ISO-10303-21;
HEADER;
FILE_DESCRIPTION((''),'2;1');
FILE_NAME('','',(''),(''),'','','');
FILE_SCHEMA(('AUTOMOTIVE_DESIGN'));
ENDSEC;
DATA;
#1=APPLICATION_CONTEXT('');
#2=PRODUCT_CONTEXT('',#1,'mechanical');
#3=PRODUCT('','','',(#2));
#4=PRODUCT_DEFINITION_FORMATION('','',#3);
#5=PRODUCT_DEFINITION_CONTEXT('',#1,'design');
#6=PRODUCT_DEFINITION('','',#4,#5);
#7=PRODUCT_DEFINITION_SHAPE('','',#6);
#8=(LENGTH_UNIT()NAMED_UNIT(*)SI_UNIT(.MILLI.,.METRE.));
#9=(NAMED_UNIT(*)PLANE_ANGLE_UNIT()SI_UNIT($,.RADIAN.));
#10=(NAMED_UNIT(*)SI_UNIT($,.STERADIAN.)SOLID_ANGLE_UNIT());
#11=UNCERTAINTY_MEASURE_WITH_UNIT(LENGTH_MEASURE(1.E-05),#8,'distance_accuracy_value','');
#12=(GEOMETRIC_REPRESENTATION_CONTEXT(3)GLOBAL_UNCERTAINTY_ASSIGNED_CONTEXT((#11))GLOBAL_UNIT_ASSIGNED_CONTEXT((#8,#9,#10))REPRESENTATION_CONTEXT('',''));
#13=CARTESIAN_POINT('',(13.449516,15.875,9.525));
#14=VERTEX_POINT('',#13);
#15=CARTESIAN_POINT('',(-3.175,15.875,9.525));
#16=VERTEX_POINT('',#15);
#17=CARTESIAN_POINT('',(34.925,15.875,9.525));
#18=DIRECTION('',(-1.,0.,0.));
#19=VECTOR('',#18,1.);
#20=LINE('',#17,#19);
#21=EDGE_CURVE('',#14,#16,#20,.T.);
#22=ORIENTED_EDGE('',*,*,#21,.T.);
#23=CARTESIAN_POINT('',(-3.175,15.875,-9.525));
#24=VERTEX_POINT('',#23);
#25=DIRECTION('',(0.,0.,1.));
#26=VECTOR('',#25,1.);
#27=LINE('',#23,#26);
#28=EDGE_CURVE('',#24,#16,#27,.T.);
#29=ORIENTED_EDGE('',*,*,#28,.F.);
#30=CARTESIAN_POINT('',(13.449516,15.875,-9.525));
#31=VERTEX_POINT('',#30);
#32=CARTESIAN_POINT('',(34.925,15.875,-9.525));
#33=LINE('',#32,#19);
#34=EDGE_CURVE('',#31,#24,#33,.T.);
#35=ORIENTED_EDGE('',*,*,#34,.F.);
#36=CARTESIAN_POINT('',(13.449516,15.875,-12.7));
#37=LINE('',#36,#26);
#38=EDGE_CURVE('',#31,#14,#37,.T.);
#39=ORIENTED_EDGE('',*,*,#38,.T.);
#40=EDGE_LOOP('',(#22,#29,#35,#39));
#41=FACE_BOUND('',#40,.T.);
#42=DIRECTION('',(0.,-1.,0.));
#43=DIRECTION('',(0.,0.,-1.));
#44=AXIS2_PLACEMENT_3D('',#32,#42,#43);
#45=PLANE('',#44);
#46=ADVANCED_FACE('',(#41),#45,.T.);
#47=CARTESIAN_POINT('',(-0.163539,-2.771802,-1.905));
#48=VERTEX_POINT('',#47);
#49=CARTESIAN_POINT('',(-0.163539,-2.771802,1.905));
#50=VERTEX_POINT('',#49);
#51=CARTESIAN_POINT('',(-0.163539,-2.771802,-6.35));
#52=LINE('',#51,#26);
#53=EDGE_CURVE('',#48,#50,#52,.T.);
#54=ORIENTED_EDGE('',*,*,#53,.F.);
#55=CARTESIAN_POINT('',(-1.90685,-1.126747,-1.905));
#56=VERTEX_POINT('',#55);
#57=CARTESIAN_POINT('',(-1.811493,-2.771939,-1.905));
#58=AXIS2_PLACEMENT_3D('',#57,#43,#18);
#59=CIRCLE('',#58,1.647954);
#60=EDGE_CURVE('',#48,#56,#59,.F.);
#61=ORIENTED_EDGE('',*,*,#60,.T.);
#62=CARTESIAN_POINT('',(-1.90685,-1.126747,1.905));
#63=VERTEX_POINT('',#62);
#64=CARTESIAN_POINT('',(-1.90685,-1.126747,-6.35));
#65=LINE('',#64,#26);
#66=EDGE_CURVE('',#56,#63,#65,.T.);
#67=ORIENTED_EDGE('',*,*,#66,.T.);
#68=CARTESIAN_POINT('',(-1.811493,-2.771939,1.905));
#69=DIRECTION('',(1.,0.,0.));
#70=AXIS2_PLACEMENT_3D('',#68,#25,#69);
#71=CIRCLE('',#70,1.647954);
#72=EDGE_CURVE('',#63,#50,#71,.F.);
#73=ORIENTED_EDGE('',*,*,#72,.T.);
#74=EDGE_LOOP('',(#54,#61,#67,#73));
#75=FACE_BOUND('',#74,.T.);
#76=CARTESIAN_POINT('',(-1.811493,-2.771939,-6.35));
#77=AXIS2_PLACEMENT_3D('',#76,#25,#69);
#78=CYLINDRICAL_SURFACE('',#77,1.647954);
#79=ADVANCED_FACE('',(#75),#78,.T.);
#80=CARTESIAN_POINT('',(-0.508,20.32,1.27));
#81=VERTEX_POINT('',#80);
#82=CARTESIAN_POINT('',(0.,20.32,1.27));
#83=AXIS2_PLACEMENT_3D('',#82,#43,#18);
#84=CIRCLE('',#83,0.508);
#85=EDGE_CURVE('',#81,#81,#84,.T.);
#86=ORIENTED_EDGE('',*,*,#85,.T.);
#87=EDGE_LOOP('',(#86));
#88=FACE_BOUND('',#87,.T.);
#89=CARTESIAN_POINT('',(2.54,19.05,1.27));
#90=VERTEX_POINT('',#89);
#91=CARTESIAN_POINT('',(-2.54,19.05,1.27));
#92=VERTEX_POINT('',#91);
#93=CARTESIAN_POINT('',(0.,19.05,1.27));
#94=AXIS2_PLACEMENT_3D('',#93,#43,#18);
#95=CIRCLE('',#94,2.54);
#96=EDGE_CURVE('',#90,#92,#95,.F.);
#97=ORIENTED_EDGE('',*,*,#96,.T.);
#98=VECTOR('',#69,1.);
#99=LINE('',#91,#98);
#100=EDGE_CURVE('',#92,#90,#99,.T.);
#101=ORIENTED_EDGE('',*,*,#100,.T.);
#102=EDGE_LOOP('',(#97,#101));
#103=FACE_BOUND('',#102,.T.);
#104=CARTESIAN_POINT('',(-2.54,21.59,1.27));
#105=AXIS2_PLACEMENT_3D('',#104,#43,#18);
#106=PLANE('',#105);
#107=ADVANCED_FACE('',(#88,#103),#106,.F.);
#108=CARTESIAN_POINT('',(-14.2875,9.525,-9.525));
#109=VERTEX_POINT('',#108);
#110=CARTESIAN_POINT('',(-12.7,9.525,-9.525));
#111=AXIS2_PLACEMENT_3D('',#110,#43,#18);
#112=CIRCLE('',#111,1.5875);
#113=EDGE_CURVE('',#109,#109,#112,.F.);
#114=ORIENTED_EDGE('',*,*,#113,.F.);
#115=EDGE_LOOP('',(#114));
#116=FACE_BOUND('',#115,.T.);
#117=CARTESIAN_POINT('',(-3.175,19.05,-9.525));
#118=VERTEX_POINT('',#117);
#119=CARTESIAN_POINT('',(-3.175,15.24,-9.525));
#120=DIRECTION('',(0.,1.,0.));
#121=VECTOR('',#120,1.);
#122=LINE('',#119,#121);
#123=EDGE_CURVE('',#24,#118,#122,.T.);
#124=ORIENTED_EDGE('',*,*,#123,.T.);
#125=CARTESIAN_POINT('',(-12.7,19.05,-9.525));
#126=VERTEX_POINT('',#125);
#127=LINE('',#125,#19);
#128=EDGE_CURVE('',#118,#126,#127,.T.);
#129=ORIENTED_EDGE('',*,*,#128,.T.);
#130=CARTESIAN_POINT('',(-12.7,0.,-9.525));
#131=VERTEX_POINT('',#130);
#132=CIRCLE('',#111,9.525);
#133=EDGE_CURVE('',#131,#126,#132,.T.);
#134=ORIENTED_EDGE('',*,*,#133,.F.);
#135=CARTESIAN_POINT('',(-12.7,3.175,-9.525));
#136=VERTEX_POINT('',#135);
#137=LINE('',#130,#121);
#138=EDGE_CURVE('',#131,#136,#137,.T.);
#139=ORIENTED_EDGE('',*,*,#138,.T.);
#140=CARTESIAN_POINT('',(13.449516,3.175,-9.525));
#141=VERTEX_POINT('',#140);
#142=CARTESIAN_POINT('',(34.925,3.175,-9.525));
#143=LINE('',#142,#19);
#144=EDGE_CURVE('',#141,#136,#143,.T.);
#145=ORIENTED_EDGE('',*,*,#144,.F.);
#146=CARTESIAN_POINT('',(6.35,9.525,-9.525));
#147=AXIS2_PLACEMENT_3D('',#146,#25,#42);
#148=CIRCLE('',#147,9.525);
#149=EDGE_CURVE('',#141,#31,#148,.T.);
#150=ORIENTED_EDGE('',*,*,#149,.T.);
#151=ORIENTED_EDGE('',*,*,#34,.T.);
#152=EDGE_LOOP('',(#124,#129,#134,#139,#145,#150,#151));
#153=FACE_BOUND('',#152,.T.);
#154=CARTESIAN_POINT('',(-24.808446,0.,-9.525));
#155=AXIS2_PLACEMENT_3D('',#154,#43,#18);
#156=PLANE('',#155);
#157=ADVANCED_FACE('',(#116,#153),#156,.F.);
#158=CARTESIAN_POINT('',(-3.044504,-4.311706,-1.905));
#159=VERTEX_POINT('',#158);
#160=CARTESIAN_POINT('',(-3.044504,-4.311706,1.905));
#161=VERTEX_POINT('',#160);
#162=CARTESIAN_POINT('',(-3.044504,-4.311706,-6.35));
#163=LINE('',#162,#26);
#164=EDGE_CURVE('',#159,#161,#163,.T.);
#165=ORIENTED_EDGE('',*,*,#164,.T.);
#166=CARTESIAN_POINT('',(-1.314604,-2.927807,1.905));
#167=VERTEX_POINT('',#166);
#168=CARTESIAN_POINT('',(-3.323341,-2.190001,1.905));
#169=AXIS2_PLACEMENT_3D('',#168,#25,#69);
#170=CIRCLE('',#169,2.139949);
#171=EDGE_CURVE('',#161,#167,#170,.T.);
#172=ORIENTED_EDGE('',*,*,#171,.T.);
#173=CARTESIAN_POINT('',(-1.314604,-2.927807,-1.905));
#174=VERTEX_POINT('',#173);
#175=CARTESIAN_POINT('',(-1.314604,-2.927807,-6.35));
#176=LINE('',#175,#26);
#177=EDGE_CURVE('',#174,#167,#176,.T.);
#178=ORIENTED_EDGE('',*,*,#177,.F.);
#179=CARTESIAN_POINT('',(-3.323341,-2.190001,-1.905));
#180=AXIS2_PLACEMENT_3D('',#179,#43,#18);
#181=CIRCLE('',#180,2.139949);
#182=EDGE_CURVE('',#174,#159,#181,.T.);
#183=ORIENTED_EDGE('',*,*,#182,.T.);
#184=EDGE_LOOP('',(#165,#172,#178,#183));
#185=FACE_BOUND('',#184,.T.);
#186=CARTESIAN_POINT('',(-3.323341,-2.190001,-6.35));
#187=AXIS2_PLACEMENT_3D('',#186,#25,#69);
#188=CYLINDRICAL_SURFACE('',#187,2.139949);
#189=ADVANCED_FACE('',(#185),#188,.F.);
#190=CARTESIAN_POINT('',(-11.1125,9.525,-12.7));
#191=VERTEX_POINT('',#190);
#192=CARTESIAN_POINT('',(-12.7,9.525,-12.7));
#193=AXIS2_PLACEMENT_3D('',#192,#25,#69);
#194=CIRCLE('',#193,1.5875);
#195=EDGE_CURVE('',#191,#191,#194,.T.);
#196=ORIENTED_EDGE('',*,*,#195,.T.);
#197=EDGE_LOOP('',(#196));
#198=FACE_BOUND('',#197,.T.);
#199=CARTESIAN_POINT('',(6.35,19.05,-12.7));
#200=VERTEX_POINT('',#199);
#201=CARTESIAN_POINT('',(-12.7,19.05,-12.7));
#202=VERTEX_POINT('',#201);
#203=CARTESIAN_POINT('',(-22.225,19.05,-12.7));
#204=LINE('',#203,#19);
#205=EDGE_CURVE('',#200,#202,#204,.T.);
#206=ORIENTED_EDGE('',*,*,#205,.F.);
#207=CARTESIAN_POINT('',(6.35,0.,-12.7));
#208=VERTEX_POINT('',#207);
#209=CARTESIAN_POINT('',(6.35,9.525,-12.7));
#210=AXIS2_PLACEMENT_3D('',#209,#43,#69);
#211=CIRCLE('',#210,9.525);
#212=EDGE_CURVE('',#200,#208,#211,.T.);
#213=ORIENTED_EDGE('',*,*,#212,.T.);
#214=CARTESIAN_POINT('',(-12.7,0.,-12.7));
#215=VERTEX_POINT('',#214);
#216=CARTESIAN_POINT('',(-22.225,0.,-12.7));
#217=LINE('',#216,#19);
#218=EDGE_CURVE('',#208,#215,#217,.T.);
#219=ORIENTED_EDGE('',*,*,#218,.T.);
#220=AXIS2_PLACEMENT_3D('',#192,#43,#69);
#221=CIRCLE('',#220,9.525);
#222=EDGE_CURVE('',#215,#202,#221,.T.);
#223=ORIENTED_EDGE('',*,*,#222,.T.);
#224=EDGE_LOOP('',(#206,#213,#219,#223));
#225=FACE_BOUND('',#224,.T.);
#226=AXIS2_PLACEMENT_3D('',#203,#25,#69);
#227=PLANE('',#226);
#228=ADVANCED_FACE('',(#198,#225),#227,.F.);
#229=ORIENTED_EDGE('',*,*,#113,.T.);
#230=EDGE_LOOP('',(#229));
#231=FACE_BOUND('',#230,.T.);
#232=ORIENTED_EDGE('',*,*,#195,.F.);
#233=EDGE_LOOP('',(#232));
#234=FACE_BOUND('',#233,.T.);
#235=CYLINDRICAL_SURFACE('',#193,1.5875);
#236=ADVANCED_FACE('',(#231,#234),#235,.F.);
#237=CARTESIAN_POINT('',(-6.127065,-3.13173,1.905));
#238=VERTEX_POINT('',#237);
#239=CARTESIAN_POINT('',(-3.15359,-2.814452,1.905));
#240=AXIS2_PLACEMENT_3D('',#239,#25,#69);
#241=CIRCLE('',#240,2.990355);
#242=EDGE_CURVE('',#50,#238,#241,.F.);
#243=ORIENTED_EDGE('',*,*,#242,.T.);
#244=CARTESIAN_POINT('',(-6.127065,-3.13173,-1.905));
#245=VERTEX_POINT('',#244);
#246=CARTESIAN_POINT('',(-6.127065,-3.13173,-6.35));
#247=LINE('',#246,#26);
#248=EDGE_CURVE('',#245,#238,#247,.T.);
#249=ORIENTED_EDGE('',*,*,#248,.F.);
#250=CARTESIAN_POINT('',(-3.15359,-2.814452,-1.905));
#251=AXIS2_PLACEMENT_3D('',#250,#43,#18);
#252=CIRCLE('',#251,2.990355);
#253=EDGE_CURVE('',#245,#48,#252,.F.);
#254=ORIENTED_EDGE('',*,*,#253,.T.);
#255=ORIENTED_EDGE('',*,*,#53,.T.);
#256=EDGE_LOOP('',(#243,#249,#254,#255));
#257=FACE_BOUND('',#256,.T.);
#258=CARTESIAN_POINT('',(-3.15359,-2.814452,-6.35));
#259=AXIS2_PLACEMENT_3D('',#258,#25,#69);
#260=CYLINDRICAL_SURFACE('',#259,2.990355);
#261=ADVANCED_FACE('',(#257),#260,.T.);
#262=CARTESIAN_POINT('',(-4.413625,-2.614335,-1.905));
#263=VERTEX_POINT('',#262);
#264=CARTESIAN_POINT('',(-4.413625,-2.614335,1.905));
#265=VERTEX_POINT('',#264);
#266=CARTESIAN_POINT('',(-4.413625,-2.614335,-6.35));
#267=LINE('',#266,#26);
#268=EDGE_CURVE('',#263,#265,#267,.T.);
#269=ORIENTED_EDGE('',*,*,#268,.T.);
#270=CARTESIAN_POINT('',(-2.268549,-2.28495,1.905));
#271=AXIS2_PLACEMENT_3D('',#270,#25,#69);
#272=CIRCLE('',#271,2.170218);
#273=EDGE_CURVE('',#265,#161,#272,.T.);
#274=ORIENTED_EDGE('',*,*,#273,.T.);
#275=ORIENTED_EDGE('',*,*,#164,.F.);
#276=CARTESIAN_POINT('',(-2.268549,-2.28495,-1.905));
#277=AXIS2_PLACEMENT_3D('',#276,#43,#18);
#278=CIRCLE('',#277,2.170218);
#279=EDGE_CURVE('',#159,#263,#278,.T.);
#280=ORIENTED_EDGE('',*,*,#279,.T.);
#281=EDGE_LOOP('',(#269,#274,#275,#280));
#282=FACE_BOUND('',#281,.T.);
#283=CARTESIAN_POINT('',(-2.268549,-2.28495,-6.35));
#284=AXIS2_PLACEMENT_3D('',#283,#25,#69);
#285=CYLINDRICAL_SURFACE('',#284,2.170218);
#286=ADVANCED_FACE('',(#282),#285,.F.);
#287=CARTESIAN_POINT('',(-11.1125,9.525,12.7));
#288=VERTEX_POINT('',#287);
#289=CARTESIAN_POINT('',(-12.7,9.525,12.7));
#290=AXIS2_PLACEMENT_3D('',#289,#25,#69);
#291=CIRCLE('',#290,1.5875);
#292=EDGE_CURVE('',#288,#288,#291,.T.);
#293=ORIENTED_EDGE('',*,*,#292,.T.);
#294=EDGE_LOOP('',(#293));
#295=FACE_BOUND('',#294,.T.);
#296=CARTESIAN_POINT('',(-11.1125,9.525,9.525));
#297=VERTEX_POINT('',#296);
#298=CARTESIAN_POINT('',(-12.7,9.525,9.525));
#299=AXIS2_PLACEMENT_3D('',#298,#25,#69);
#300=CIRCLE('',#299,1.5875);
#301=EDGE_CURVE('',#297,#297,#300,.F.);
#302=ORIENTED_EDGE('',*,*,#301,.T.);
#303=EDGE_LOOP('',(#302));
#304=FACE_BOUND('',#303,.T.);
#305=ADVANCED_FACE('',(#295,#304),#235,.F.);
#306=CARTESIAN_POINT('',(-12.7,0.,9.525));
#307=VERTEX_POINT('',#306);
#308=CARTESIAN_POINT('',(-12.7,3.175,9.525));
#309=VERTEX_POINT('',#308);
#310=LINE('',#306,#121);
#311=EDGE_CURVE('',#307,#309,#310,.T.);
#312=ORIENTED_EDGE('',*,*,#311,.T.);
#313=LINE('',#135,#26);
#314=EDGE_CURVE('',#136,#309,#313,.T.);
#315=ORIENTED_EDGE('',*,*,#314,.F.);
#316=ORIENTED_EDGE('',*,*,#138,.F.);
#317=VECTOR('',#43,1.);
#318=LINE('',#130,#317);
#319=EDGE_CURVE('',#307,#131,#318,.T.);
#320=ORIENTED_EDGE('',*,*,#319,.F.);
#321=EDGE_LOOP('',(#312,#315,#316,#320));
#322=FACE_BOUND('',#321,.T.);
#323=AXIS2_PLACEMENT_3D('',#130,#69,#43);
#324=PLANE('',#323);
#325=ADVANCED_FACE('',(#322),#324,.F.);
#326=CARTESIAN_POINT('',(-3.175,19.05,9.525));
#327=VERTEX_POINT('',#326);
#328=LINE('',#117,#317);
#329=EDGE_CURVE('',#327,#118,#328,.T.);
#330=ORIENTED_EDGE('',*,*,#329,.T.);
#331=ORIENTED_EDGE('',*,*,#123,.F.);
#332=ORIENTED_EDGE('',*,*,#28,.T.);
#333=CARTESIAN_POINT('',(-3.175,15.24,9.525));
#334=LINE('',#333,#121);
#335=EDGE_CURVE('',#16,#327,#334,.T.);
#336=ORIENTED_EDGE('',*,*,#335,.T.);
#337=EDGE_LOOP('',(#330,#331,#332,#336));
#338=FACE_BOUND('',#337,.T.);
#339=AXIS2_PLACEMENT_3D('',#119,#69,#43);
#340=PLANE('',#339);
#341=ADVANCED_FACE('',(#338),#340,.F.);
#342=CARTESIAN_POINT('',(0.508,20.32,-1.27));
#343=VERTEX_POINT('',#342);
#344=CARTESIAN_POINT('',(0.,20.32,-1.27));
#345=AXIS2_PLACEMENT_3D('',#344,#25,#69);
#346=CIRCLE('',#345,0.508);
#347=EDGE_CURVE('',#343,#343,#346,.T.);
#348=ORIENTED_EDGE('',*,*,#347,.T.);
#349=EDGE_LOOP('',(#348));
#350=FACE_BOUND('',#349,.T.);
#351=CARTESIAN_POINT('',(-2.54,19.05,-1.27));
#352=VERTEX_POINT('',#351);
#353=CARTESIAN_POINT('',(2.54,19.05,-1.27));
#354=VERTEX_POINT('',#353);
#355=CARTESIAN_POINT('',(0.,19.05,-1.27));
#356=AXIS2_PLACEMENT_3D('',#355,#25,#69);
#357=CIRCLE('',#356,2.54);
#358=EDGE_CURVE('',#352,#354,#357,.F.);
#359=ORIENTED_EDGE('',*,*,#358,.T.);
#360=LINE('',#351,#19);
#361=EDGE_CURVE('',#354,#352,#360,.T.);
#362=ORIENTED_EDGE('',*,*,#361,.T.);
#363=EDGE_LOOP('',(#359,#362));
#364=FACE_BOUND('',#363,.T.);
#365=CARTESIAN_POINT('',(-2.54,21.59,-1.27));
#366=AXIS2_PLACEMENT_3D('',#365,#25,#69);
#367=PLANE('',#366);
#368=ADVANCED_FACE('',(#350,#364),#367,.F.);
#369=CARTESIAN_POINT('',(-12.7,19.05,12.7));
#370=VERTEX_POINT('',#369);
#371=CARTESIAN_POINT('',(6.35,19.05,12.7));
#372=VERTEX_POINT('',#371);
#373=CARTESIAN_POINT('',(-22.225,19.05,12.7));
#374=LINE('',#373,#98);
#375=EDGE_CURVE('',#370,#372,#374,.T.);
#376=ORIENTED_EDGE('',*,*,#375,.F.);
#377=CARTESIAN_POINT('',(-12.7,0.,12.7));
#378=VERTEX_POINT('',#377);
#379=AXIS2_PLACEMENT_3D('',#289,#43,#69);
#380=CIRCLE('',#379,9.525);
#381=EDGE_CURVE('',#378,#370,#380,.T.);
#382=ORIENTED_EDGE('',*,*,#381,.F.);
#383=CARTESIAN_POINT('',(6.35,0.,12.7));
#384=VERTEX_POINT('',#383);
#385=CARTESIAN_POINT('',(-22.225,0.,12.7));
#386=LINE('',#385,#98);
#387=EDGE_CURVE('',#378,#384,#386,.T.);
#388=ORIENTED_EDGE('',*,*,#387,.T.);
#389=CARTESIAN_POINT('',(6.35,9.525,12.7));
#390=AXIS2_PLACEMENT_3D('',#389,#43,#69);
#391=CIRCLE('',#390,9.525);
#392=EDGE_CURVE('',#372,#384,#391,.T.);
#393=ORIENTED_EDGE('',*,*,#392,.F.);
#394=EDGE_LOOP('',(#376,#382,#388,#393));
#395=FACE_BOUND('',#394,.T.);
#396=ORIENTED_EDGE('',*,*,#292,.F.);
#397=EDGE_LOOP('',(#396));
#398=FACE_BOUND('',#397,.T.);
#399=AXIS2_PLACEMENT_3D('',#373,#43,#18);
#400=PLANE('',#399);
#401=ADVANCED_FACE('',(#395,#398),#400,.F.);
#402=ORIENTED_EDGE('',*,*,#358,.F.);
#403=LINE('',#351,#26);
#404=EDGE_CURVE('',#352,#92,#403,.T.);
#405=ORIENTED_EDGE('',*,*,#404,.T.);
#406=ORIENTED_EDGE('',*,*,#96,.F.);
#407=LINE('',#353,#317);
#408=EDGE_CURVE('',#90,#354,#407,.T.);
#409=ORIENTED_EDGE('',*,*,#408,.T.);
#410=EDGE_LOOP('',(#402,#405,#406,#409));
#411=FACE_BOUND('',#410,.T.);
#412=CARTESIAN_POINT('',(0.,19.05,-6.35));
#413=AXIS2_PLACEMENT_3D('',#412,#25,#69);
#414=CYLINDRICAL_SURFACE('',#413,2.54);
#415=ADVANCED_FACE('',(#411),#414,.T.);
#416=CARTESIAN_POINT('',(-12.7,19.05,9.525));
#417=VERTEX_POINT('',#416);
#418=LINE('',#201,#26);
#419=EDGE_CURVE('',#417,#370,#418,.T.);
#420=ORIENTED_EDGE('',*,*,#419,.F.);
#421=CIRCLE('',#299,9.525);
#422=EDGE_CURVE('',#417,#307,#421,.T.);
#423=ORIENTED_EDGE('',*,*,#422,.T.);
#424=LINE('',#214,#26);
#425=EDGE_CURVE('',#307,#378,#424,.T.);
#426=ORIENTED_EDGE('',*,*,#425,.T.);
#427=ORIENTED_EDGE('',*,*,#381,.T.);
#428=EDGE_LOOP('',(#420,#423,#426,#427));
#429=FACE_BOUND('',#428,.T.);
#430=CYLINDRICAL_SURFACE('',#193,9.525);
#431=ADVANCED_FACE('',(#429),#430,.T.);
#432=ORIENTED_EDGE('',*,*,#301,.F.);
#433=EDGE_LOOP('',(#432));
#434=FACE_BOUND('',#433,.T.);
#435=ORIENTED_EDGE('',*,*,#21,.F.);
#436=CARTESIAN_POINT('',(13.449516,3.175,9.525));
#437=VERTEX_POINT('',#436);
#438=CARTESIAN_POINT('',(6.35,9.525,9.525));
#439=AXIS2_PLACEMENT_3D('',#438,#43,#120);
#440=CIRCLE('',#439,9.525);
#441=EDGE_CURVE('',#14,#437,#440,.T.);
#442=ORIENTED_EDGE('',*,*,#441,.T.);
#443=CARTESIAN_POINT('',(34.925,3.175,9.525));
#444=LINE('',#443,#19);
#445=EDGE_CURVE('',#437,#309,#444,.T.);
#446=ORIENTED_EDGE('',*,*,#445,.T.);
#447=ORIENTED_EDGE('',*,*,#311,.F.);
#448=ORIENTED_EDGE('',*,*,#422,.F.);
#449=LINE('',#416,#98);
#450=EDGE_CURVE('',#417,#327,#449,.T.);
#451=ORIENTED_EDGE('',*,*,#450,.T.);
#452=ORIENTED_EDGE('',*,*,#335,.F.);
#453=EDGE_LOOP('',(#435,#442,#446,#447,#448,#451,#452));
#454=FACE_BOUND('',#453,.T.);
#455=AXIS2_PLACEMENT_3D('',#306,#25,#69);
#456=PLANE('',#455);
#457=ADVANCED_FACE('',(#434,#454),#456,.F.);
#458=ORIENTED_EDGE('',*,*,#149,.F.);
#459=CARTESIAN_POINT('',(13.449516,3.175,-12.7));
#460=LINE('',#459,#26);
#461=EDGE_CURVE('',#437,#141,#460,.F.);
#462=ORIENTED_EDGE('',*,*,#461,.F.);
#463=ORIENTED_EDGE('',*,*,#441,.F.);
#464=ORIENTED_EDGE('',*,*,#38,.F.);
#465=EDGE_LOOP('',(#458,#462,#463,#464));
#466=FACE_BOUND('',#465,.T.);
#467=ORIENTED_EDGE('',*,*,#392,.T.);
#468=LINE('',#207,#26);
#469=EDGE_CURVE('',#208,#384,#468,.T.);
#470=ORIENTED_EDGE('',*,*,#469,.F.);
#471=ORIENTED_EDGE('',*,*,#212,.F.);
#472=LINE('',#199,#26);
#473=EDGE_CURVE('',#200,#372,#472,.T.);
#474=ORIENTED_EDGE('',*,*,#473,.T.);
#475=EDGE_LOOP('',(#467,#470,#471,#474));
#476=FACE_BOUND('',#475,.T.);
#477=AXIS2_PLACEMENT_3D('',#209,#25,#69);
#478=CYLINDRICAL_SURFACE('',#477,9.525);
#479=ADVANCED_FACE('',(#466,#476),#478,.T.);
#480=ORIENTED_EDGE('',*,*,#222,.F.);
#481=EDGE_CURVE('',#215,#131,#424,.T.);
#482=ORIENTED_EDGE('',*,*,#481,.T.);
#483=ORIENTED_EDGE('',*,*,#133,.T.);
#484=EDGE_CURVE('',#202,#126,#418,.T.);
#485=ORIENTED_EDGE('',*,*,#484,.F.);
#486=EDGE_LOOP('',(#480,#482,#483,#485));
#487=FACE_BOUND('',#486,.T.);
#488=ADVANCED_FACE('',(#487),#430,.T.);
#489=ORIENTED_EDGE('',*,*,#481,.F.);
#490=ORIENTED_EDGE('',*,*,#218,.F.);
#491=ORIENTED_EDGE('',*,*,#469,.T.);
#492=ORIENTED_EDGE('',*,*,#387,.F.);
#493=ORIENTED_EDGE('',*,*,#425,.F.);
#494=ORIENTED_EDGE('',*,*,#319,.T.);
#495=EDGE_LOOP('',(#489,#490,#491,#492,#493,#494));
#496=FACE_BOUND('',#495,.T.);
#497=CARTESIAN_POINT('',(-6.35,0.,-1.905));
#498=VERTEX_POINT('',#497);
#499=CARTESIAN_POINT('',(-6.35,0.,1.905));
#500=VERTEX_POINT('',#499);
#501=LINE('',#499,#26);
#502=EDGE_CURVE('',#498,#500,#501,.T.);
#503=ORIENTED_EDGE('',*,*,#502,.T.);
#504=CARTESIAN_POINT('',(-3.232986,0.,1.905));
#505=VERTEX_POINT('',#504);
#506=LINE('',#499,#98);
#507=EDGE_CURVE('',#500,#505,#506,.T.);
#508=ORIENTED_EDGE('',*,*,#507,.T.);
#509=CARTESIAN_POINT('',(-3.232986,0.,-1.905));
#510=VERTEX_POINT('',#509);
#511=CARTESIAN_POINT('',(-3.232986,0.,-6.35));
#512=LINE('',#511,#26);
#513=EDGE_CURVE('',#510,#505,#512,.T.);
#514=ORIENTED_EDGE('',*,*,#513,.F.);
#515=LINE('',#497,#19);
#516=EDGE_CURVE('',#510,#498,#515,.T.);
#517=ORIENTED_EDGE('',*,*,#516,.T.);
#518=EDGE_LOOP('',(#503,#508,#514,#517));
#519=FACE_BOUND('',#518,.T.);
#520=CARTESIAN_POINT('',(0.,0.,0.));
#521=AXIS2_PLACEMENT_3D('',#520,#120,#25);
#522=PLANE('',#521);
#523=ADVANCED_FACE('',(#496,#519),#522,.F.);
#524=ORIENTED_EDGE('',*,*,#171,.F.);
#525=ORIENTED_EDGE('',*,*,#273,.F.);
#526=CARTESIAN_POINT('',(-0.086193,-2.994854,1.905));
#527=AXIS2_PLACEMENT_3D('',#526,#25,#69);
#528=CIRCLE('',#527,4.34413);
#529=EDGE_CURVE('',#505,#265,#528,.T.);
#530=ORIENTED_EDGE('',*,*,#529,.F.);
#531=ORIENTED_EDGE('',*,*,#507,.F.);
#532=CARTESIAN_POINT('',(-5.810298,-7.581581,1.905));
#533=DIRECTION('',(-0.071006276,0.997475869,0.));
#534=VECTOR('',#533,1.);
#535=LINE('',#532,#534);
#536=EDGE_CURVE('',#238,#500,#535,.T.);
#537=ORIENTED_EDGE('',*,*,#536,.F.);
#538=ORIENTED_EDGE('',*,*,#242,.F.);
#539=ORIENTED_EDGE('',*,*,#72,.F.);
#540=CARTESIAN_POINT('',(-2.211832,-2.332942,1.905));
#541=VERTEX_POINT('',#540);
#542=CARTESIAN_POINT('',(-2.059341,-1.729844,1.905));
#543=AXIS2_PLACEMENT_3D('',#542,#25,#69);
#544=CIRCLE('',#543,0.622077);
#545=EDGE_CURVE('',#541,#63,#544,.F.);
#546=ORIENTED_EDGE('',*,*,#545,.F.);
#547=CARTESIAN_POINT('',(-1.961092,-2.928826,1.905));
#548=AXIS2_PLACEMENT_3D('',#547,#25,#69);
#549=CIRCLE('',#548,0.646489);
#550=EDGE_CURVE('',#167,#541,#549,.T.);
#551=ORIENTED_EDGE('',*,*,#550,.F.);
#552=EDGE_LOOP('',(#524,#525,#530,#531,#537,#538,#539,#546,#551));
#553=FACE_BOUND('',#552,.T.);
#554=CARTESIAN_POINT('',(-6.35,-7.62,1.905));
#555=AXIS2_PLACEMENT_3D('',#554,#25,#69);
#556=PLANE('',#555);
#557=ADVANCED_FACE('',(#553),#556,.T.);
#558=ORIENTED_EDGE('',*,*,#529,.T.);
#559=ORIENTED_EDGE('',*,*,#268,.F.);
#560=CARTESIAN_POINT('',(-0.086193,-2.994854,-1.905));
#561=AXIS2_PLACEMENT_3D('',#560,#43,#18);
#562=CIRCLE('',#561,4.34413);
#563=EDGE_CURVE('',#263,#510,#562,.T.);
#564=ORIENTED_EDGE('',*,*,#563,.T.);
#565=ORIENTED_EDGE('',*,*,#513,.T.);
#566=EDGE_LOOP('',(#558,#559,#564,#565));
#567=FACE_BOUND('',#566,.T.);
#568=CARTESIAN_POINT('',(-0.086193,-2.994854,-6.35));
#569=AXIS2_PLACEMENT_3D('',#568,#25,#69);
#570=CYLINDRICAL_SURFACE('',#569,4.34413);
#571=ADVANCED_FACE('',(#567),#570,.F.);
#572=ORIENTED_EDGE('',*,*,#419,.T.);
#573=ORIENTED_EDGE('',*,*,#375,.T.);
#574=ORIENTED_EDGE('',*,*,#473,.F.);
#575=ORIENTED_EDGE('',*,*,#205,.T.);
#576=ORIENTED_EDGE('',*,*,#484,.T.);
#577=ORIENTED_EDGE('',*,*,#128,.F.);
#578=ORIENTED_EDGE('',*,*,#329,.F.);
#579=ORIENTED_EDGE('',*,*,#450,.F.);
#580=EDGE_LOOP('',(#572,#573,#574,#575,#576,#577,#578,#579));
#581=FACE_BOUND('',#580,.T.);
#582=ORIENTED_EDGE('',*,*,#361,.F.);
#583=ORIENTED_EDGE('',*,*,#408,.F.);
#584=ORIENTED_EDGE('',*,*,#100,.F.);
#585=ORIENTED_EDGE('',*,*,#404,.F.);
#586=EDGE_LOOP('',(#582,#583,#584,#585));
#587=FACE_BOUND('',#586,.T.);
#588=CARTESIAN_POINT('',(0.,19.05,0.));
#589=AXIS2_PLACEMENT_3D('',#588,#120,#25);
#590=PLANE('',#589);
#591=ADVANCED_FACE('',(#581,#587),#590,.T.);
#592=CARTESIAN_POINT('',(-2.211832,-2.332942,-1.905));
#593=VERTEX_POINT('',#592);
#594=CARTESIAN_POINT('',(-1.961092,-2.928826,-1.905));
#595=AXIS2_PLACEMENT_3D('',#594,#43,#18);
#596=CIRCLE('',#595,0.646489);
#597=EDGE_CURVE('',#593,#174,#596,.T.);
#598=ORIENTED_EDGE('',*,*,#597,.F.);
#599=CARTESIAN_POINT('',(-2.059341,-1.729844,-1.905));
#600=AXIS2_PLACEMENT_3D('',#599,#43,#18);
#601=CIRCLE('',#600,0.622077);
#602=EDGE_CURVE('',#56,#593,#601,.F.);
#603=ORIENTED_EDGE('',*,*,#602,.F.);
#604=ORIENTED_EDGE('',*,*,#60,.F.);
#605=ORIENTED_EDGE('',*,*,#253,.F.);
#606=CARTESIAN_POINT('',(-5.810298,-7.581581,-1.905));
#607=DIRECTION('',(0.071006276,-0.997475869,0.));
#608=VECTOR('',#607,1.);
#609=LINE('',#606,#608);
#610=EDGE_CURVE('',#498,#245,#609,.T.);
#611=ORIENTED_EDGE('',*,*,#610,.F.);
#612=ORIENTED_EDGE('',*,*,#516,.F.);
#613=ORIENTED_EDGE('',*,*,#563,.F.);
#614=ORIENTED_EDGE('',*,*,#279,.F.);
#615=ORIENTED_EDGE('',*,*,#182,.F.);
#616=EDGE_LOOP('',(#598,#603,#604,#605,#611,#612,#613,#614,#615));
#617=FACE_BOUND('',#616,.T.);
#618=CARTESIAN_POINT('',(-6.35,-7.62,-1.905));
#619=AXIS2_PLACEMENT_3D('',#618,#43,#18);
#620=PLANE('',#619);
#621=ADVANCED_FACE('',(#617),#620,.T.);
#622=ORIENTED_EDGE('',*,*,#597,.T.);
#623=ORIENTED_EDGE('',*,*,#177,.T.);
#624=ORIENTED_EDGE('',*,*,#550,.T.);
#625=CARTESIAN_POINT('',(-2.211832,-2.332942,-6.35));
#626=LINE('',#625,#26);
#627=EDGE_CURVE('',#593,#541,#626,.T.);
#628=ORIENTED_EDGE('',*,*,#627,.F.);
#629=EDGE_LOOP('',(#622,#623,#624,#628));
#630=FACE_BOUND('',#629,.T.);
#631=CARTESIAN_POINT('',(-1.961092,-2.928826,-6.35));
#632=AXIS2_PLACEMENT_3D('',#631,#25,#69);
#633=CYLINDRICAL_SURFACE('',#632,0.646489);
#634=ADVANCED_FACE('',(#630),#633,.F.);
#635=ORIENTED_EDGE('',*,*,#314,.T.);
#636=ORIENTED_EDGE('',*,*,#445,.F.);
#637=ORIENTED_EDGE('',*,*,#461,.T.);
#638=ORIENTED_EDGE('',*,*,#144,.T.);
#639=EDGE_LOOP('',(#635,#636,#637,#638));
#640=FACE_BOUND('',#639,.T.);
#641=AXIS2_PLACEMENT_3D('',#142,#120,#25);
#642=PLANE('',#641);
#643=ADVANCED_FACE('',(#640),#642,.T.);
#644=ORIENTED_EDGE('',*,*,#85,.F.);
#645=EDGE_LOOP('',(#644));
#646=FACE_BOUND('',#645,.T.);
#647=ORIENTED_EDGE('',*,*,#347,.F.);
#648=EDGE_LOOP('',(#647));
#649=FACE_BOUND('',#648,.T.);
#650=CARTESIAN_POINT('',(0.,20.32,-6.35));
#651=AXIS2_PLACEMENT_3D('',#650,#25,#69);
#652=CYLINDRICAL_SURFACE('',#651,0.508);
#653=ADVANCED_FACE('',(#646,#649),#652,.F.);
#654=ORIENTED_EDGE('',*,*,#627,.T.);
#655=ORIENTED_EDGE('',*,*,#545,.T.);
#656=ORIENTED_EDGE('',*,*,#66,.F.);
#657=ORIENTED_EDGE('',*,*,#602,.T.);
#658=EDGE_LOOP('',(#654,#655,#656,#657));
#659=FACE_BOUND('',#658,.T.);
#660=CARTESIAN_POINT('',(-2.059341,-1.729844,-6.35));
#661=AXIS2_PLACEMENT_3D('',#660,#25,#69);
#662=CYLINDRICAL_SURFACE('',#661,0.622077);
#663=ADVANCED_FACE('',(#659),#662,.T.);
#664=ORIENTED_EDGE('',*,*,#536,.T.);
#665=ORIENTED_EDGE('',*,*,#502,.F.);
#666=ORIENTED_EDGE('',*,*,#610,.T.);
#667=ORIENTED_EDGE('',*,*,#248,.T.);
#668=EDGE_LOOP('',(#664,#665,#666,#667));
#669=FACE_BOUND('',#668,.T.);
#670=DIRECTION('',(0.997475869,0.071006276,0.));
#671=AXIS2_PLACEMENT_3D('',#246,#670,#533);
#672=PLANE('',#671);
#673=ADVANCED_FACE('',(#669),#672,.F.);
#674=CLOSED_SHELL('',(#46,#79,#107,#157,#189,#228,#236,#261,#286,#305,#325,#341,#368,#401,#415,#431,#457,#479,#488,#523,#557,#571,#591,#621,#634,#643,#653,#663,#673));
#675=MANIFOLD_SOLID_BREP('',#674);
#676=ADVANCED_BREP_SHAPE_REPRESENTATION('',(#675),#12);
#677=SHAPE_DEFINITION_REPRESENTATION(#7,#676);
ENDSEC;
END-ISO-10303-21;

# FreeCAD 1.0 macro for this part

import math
import FreeCAD as App
import Part
import Sketcher
from FreeCAD import Vector
Q = App.Units.Quantity


def add_polygon(sketch, points):
    """Adds a closed chain of lines whose ends are joined by coincident constraints."""
    first, n = sketch.GeometryCount, len(points)
    for a, b in zip(points, points[1:] + points[:1]):
        sketch.addGeometry(Part.LineSegment(App.Vector(*a, 0), App.Vector(*b, 0)), False)
    for i in range(n):
        sketch.addConstraint(Sketcher.Constraint("Coincident", first + i, 2, first + (i + 1) % n, 1))

doc = App.newDocument("Part")
params = doc.addObject("Spreadsheet::Sheet", "Params")
for row, (alias, value) in enumerate([
    ("sketch1_height", "1 in"),
    ("sketch1_width", "1.5 in"),
    ("pad1_length", "0.75 in"),
    ("sketch2_diameter", "0.125 in"),
    ("sketch2_radius", "0.375 in"),
    ("pocket1_length", "1 in"),
    ("sketch3_height", "0.75 in"),
    ("pocket2_length", "0.75 in"),
    ("sketch4_width", "0.5 in"),
    ("sketch4_height", "0.75 in"),
    ("pocket3_length", "2 in"),
    ("sketch5_height", "0.15 in"),
    ("pad2_length", "0.3 in"),
    ("pocket4_length", "0.75 in"),
    ("sketch7_width", "0.2 in"),
    ("sketch7_height", "0.1 in"),
    ("pad3_length", "0.1 in"),
    ("sketch8_radius", "0.1 in"),
    ("sketch8_diameter", "0.04 in"),
    ("pocket5_length", "0.75 in"),
    ("sketch9_height", "0.75 in"),
    ("sketch9_width", "0.375 in"),
    ("pocket6_length", "0.15 in"),
], start=1):
    params.set(f"A{row}", alias)
    params.set(f"B{row}", "=" + value)
    params.setAlias(f"B{row}", alias)

body = doc.addObject("PartDesign::Body", "Body")

# Sketch on XZ plane
sketch1 = body.newObject("Sketcher::SketchObject", "Sketch")
sketch1.AttachmentSupport = (doc.getObject("XZ_Plane"), [""])
sketch1.MapMode = "FlatFace"
add_polygon(sketch1, [(-22.225, -12.7), (-22.225, 12.7), (15.875, 12.7), (15.875, -12.7)])  # lines 0-3
sketch1.addConstraint(Sketcher.Constraint("Vertical", 0))
sketch1.addConstraint(Sketcher.Constraint("Horizontal", 1))
sketch1.addConstraint(Sketcher.Constraint("Vertical", 2))
sketch1.addConstraint(Sketcher.Constraint("Horizontal", 3))
sketch1.addConstraint(Sketcher.Constraint("DistanceY", 0, 1, 0, 2, Q("1 in")))
sketch1.addConstraint(Sketcher.Constraint("DistanceX", 1, 1, 1, 2, Q("1.5 in")))
sketch1.addConstraint(Sketcher.Constraint("DistanceY", -1, 1, 0, 2, Q("0.5 in")))
sketch1.addConstraint(Sketcher.Constraint("DistanceX", 0, 2, -1, 1, Q("0.875 in")))
sketch1.setExpression("Constraints[8]", "Params.sketch1_height")
sketch1.setExpression("Constraints[9]", "Params.sketch1_width")
pad1 = body.newObject("PartDesign::Pad", "Pad")
pad1.Profile = sketch1
pad1.setExpression("Length", "Params.pad1_length")
pad1.Reversed = True

# Sketch on XY plane
sketch2 = body.newObject("Sketcher::SketchObject", "Sketch001")
sketch2.AttachmentSupport = (doc.getObject("XY_Plane"), [""])
sketch2.MapMode = "FlatFace"
sketch2.AttachmentOffset = App.Placement(Vector(0, 0, 0.5 * 25.4), App.Rotation())
sketch2.addGeometry(Part.Circle(Vector(-12.7, 9.525, 0), Vector(0, 0, 1), 1.5875), False)
sketch2.addGeometry(Part.ArcOfCircle(Part.Circle(Vector(-12.7, 9.525, 0), Vector(0, 0, 1), 9.525), math.radians(90), math.radians(270)), False)
sketch2.addGeometry(Part.ArcOfCircle(Part.Circle(Vector(-21.018848, 9.525, 0), Vector(0, 0, 1), 12.646298), math.radians(48.867016), math.radians(311.132984)), False)
sketch2.addGeometry(Part.ArcOfCircle(Part.Circle(Vector(6.35, 9.525, 0), Vector(0, 0, 1), 9.525), math.radians(-90), math.radians(90)), False)
sketch2.addGeometry(Part.ArcOfCircle(Part.Circle(Vector(13.209964, 9.525, 0), Vector(0, 0, 1), 11.738174), math.radians(-125.761667), math.radians(125.761667)), False)
sketch2.addConstraint(Sketcher.Constraint("Coincident", 1, 1, 2, 1))
sketch2.addConstraint(Sketcher.Constraint("Coincident", 2, 2, 1, 2))
sketch2.addConstraint(Sketcher.Constraint("Coincident", 3, 1, 4, 1))
sketch2.addConstraint(Sketcher.Constraint("Coincident", 4, 2, 3, 2))
sketch2.addConstraint(Sketcher.Constraint("Coincident", 1, 3, 0, 3))
sketch2.addConstraint(Sketcher.Constraint("Equal", 1, 3))
sketch2.addConstraint(Sketcher.Constraint("PointOnObject", 2, 2, -1))
sketch2.addConstraint(Sketcher.Constraint("PointOnObject", 3, 1, -1))
sketch2.addConstraint(Sketcher.Constraint("Horizontal", 1, 3, 2, 3))
sketch2.addConstraint(Sketcher.Constraint("Horizontal", 3, 3, 4, 3))
sketch2.addConstraint(Sketcher.Constraint("Vertical", 0, 3, 1, 1))
sketch2.addConstraint(Sketcher.Constraint("Diameter", 0, Q("0.125 in")))
sketch2.addConstraint(Sketcher.Constraint("Radius", 1, Q("0.375 in")))
sketch2.addConstraint(Sketcher.Constraint("DistanceX", 0, 3, -1, 1, Q("0.5 in")))
sketch2.addConstraint(Sketcher.Constraint("DistanceX", -1, 1, 3, 3, Q("0.25 in")))
sketch2.addConstraint(Sketcher.Constraint("DistanceX", -1, 1, 3, 1, Q("0.25 in")))
sketch2.addConstraint(Sketcher.Constraint("Radius", 2, Q("12.646298 mm")))
sketch2.addConstraint(Sketcher.Constraint("Radius", 4, Q("11.738174 mm")))
sketch2.setExpression("Constraints[11]", "Params.sketch2_diameter")
sketch2.setExpression("Constraints[12]", "Params.sketch2_radius")
pocket1 = body.newObject("PartDesign::Pocket", "Pocket")
pocket1.Profile = sketch2
pocket1.setExpression("Length", "Params.pocket1_length")

# Sketch on XZ plane
sketch3 = body.newObject("Sketcher::SketchObject", "Sketch002")
sketch3.AttachmentSupport = (doc.getObject("XZ_Plane"), [""])
sketch3.MapMode = "FlatFace"
sketch3.AttachmentOffset = App.Placement(Vector(0, 0, -0.75 * 25.4), App.Rotation())
add_polygon(sketch3, [(-24.808446, -9.525), (-24.808446, 9.525), (-12.7, 9.525), (-12.7, -9.525)])  # lines 0-3
sketch3.addConstraint(Sketcher.Constraint("Vertical", 0))
sketch3.addConstraint(Sketcher.Constraint("Horizontal", 1))
sketch3.addConstraint(Sketcher.Constraint("Vertical", 2))
sketch3.addConstraint(Sketcher.Constraint("Horizontal", 3))
sketch3.addConstraint(Sketcher.Constraint("DistanceY", 0, 1, 0, 2, Q("0.75 in")))
sketch3.addConstraint(Sketcher.Constraint("DistanceX", 1, 2, -1, 1, Q("0.5 in")))
sketch3.addConstraint(Sketcher.Constraint("DistanceY", -1, 1, 0, 2, Q("0.375 in")))
sketch3.addConstraint(Sketcher.Constraint("DistanceX", 1, 1, 1, 2, Q("12.108446 mm")))
sketch3.setExpression("Constraints[8]", "Params.sketch3_height")
pocket2 = body.newObject("PartDesign::Pocket", "Pocket001")
pocket2.Profile = sketch3
pocket2.setExpression("Length", "Params.pocket2_length")
pocket2.Reversed = True

# Sketch on YZ plane
sketch4 = body.newObject("Sketcher::SketchObject", "Sketch003")
sketch4.AttachmentSupport = (doc.getObject("YZ_Plane"), [""])
sketch4.MapMode = "FlatFace"
sketch4.AttachmentOffset = App.Placement(Vector(0, 0, -0.625 * 25.4), App.Rotation())
add_polygon(sketch4, [(15.875, 9.525), (3.175, 9.525), (3.175, -9.525), (15.875, -9.525)])  # lines 0-3
sketch4.addConstraint(Sketcher.Constraint("Horizontal", 0))
sketch4.addConstraint(Sketcher.Constraint("Vertical", 1))
sketch4.addConstraint(Sketcher.Constraint("Horizontal", 2))
sketch4.addConstraint(Sketcher.Constraint("Vertical", 3))
sketch4.addConstraint(Sketcher.Constraint("DistanceX", 0, 2, 0, 1, Q("0.5 in")))
sketch4.addConstraint(Sketcher.Constraint("DistanceY", 1, 2, 1, 1, Q("0.75 in")))
sketch4.addConstraint(Sketcher.Constraint("DistanceX", -1, 1, 0, 2, Q("0.125 in")))
sketch4.addConstraint(Sketcher.Constraint("DistanceY", -1, 1, 0, 2, Q("0.375 in")))
sketch4.setExpression("Constraints[8]", "Params.sketch4_width")
sketch4.setExpression("Constraints[9]", "Params.sketch4_height")
pocket3 = body.newObject("PartDesign::Pocket", "Pocket002")
pocket3.Profile = sketch4
pocket3.setExpression("Length", "Params.pocket3_length")
pocket3.Reversed = True

# Sketch on XZ plane
sketch5 = body.newObject("Sketcher::SketchObject", "Sketch004")
sketch5.AttachmentSupport = (doc.getObject("XZ_Plane"), [""])
sketch5.MapMode = "FlatFace"
add_polygon(sketch5, [(-6.35, -1.905), (-6.35, 1.905), (1.31057, 1.905), (1.31057, -1.905)])  # lines 0-3
sketch5.addConstraint(Sketcher.Constraint("Vertical", 0))
sketch5.addConstraint(Sketcher.Constraint("Horizontal", 1))
sketch5.addConstraint(Sketcher.Constraint("Vertical", 2))
sketch5.addConstraint(Sketcher.Constraint("Horizontal", 3))
sketch5.addConstraint(Sketcher.Constraint("DistanceY", 0, 1, 0, 2, Q("0.15 in")))
sketch5.addConstraint(Sketcher.Constraint("DistanceX", 0, 2, -1, 1, Q("0.25 in")))
sketch5.addConstraint(Sketcher.Constraint("DistanceY", -1, 1, 0, 2, Q("0.075 in")))
sketch5.addConstraint(Sketcher.Constraint("DistanceX", 1, 1, 1, 2, Q("7.66057 mm")))
sketch5.setExpression("Constraints[8]", "Params.sketch5_height")
pad2 = body.newObject("PartDesign::Pad", "Pad001")
pad2.Profile = sketch5
pad2.setExpression("Length", "Params.pad2_length")

# Sketch on XY plane
sketch6 = body.newObject("Sketcher::SketchObject", "Sketch005")
sketch6.AttachmentSupport = (doc.getObject("XY_Plane"), [""])
sketch6.MapMode = "FlatFace"
sketch6.AttachmentOffset = App.Placement(Vector(0, 0, 0.5 * 25.4), App.Rotation())
sketch6.addGeometry(Part.LineSegment(Vector(-6.858, 0, 0), Vector(-7.080935, -3.13173, 0)), False)
sketch6.addGeometry(Part.ArcOfCircle(Part.Circle(Vector(-10.05441, -2.814452, 0), Vector(0, 0, 1), 2.990355), math.radians(-81.177754), math.radians(-6.090574)), False)
sketch6.addGeometry(Part.ArcOfCircle(Part.Circle(Vector(-10.05441, -2.814452, 0), Vector(0, 0, 1), 2.990355), math.radians(179.182795), math.radians(278.822246)), False)
sketch6.addGeometry(Part.ArcOfCircle(Part.Circle(Vector(-11.396507, -2.771939, 0), Vector(0, 0, 1), 1.647954), math.radians(86.682793), math.radians(179.995226)), False)
sketch6.addGeometry(Part.ArcOfCircle(Part.Circle(Vector(-11.148659, -1.729844, 0), Vector(0, 0, 1), 0.622077), math.radians(-75.810374), math.radians(104.189626)), False)
sketch6.addGeometry(Part.ArcOfCircle(Part.Circle(Vector(-11.246908, -2.928826, 0), Vector(0, 0, 1), 0.646489), math.radians(67.179321), math.radians(179.909719)), False)
sketch6.addGeometry(Part.ArcOfCircle(Part.Circle(Vector(-9.884659, -2.190001, 0), Vector(0, 0, 1), 2.139949), math.radians(-159.831802), math.radians(-97.486985)), False)
sketch6.addGeometry(Part.ArcOfCircle(Part.Circle(Vector(-10.939451, -2.28495, 0), Vector(0, 0, 1), 2.170218), math.radians(-69.050372), math.radians(-8.729807)), False)
sketch6.addGeometry(Part.ArcOfCircle(Part.Circle(Vector(-13.121807, -2.994854, 0), Vector(0, 0, 1), 4.34413), math.radians(5.0252), math.radians(43.582843)), False)
sketch6.addGeometry(Part.LineSegment(Vector(-9.975014, 0, 0), Vector(-14.771032, 0, 0)), False)
sketch6.addGeometry(Part.LineSegment(Vector(-14.771032, 0, 0), Vector(-14.771032, -7.767816, 0)), False)
sketch6.addGeometry(Part.LineSegment(Vector(-14.771032, -7.767816, 0), Vector(-6.858, -7.767816, 0)), False)
sketch6.addGeometry(Part.LineSegment(Vector(-6.858, -7.767816, 0), Vector(-6.858, 0, 0)), False)
sketch6.addGeometry(Part.LineSegment(Vector(1.563032, 0, 0), Vector(-3.232986, 0, 0)), False)
sketch6.addGeometry(Part.ArcOfCircle(Part.Circle(Vector(-0.086193, -2.994854, 0), Vector(0, 0, 1), 4.34413), math.radians(136.417157), math.radians(174.9748)), False)
sketch6.addGeometry(Part.ArcOfCircle(Part.Circle(Vector(-2.268549, -2.28495, 0), Vector(0, 0, 1), 2.170218), math.radians(-171.270193), math.radians(-110.949628)), False)
sketch6.addGeometry(Part.ArcOfCircle(Part.Circle(Vector(-3.323341, -2.190001, 0), Vector(0, 0, 1), 2.139949), math.radians(-82.513015), math.radians(-20.168198)), False)
sketch6.addGeometry(Part.ArcOfCircle(Part.Circle(Vector(-1.961092, -2.928826, 0), Vector(0, 0, 1), 0.646489), math.radians(0.090281), math.radians(112.820679)), False)
sketch6.addGeometry(Part.ArcOfCircle(Part.Circle(Vector(-2.059341, -1.729844, 0), Vector(0, 0, 1), 0.622077), math.radians(75.810374), math.radians(255.810374)), False)
sketch6.addGeometry(Part.ArcOfCircle(Part.Circle(Vector(-1.811493, -2.771939, 0), Vector(0, 0, 1), 1.647954), math.radians(0.004774), math.radians(93.317207)), False)
sketch6.addGeometry(Part.ArcOfCircle(Part.Circle(Vector(-3.15359, -2.814452, 0), Vector(0, 0, 1), 2.990355), math.radians(-98.822246), math.radians(0.817205)), False)
sketch6.addGeometry(Part.ArcOfCircle(Part.Circle(Vector(-3.15359, -2.814452, 0), Vector(0, 0, 1), 2.990355), math.radians(-173.909426), math.radians(-98.822246)), False)
sketch6.addGeometry(Part.LineSegment(Vector(-6.127065, -3.13173, 0), Vector(-6.35, 0, 0)), False)
sketch6.addGeometry(Part.LineSegment(Vector(-6.35, 0, 0), Vector(-6.35, -7.767816, 0)), False)
sketch6.addGeometry(Part.LineSegment(Vector(-6.35, -7.767816, 0), Vector(1.563032, -7.767816, 0)), False)
sketch6.addGeometry(Part.LineSegment(Vector(1.563032, -7.767816, 0), Vector(1.563032, 0, 0)), False)
sketch6.addConstraint(Sketcher.Constraint("Coincident", 0, 2, 1, 2))
sketch6.addConstraint(Sketcher.Constraint("Tangent", 1, 1, 2, 2))
sketch6.addConstraint(Sketcher.Constraint("Coincident", 2, 1, 3, 2))
sketch6.addConstraint(Sketcher.Constraint("Coincident", 3, 1, 4, 2))
sketch6.addConstraint(Sketcher.Constraint("Coincident", 4, 1, 5, 1))
sketch6.addConstraint(Sketcher.Constraint("Coincident", 5, 2, 6, 1))
sketch6.addConstraint(Sketcher.Constraint("Coincident", 6, 2, 7, 1))
sketch6.addConstraint(Sketcher.Constraint("Coincident", 7, 2, 8, 1))
sketch6.addConstraint(Sketcher.Constraint("Coincident", 8, 2, 9, 1))
sketch6.addConstraint(Sketcher.Constraint("Coincident", 9, 2, 10, 1))
sketch6.addConstraint(Sketcher.Constraint("Coincident", 10, 2, 11, 1))
sketch6.addConstraint(Sketcher.Constraint("Coincident", 11, 2, 12, 1))
sketch6.addConstraint(Sketcher.Constraint("Coincident", 12, 2, 0, 1))
sketch6.addConstraint(Sketcher.Constraint("Coincident", 13, 2, 14, 1))
sketch6.addConstraint(Sketcher.Constraint("Coincident", 14, 2, 15, 1))
sketch6.addConstraint(Sketcher.Constraint("Coincident", 15, 2, 16, 1))
sketch6.addConstraint(Sketcher.Constraint("Coincident", 16, 2, 17, 1))
sketch6.addConstraint(Sketcher.Constraint("Coincident", 17, 2, 18, 2))
sketch6.addConstraint(Sketcher.Constraint("Coincident", 18, 1, 19, 2))
sketch6.addConstraint(Sketcher.Constraint("Coincident", 19, 1, 20, 2))
sketch6.addConstraint(Sketcher.Constraint("Tangent", 20, 1, 21, 2))
sketch6.addConstraint(Sketcher.Constraint("Coincident", 21, 1, 22, 1))
sketch6.addConstraint(Sketcher.Constraint("Coincident", 22, 2, 23, 1))
sketch6.addConstraint(Sketcher.Constraint("Coincident", 23, 2, 24, 1))
sketch6.addConstraint(Sketcher.Constraint("Coincident", 24, 2, 25, 1))
sketch6.addConstraint(Sketcher.Constraint("Coincident", 25, 2, 13, 1))
sketch6.addConstraint(Sketcher.Constraint("Horizontal", 9))
sketch6.addConstraint(Sketcher.Constraint("Vertical", 10))
sketch6.addConstraint(Sketcher.Constraint("Horizontal", 11))
sketch6.addConstraint(Sketcher.Constraint("Vertical", 12))
sketch6.addConstraint(Sketcher.Constraint("Horizontal", 13))
sketch6.addConstraint(Sketcher.Constraint("Vertical", 23))
sketch6.addConstraint(Sketcher.Constraint("Horizontal", 24))
sketch6.addConstraint(Sketcher.Constraint("Vertical", 25))
sketch6.addConstraint(Sketcher.Constraint("Equal", 1, 2))
sketch6.addConstraint(Sketcher.Constraint("Equal", 8, 14))
sketch6.addConstraint(Sketcher.Constraint("Equal", 7, 15))
sketch6.addConstraint(Sketcher.Constraint("Equal", 6, 16))
sketch6.addConstraint(Sketcher.Constraint("Equal", 5, 17))
sketch6.addConstraint(Sketcher.Constraint("Equal", 4, 18))
sketch6.addConstraint(Sketcher.Constraint("Equal", 3, 19))
sketch6.addConstraint(Sketcher.Constraint("Equal", 2, 20))
sketch6.addConstraint(Sketcher.Constraint("Equal", 20, 21))
sketch6.addConstraint(Sketcher.Constraint("PointOnObject", 8, 2, -1))
sketch6.addConstraint(Sketcher.Constraint("PointOnObject", 12, 2, -1))
sketch6.addConstraint(Sketcher.Constraint("PointOnObject", 13, 2, -1))
sketch6.addConstraint(Sketcher.Constraint("PointOnObject", 22, 2, -1))
sketch6.addConstraint(Sketcher.Constraint("Horizontal", 8, 3, 14, 3))
sketch6.addConstraint(Sketcher.Constraint("Horizontal", 7, 3, 15, 3))
sketch6.addConstraint(Sketcher.Constraint("Horizontal", 6, 3, 16, 3))
sketch6.addConstraint(Sketcher.Constraint("Horizontal", 5, 3, 17, 3))
sketch6.addConstraint(Sketcher.Constraint("Horizontal", 4, 3, 18, 3))
sketch6.addConstraint(Sketcher.Constraint("Horizontal", 3, 3, 19, 3))
sketch6.addConstraint(Sketcher.Constraint("Horizontal", 2, 3, 20, 3))
sketch6.addConstraint(Sketcher.Constraint("Horizontal", 7, 2, 14, 2))
sketch6.addConstraint(Sketcher.Constraint("Horizontal", 6, 2, 15, 2))
sketch6.addConstraint(Sketcher.Constraint("Horizontal", 5, 2, 16, 2))
sketch6.addConstraint(Sketcher.Constraint("Horizontal", 4, 1, 17, 2))
sketch6.addConstraint(Sketcher.Constraint("Horizontal", 3, 1, 18, 1))
sketch6.addConstraint(Sketcher.Constraint("Horizontal", 2, 1, 19, 1))
sketch6.addConstraint(Sketcher.Constraint("Horizontal", 1, 1, 20, 1))
sketch6.addConstraint(Sketcher.Constraint("Horizontal", 0, 2, 21, 1))
sketch6.addConstraint(Sketcher.Constraint("Horizontal", 11, 2, 23, 2))
sketch6.addConstraint(Sketcher.Constraint("Equal", 9, 13))
sketch6.addConstraint(Sketcher.Constraint("Equal", 11, 24))
sketch6.addConstraint(Sketcher.Constraint("DistanceX", 11, 2, -1, 1, Q("0.27 in")))
sketch6.addConstraint(Sketcher.Constraint("DistanceX", 22, 2, -1, 1, Q("0.25 in")))
sketch6.addConstraint(Sketcher.Constraint("Radius", 5, Q("0.646489 mm")))
sketch6.addConstraint(Sketcher.Constraint("Radius", 6, Q("2.139949 mm")))
sketch6.addConstraint(Sketcher.Constraint("Radius", 7, Q("2.170218 mm")))
sketch6.addConstraint(Sketcher.Constraint("Radius", 8, Q("4.34413 mm")))
sketch6.addConstraint(Sketcher.Constraint("Radius", 1, Q("2.990355 mm")))
sketch6.addConstraint(Sketcher.Constraint("Radius", 3, Q("1.647954 mm")))
sketch6.addConstraint(Sketcher.Constraint("Radius", 4, Q("0.622077 mm")))
sketch6.addConstraint(Sketcher.Constraint("DistanceX", 9, 2, 9, 1, Q("4.796018 mm")))
sketch6.addConstraint(Sketcher.Constraint("DistanceX", 11, 1, 11, 2, Q("7.913032 mm")))
sketch6.addConstraint(Sketcher.Constraint("DistanceY", 6, 3, -1, 1, Q("2.190001 mm")))
sketch6.addConstraint(Sketcher.Constraint("DistanceX", 3, 3, 5, 3, Q("0.149599 mm")))
sketch6.addConstraint(Sketcher.Constraint("DistanceX", 4, 3, 6, 3, Q("1.264 mm")))
sketch6.addConstraint(Sketcher.Constraint("DistanceY", 1, 3, 7, 3, Q("0.529501 mm")))
sketch6.addConstraint(Sketcher.Constraint("DistanceX", 8, 3, 3, 3, Q("1.7253 mm")))
sketch6.addConstraint(Sketcher.Constraint("DistanceY", 1, 1, 5, 3, Q("2.840601 mm")))
sketch6.addConstraint(Sketcher.Constraint("DistanceX", 2, 1, 4, 3, Q("1.895802 mm")))
sketch6.addConstraint(Sketcher.Constraint("DistanceX", 3, 1, 7, 3, Q("0.361699 mm")))
sketch6.addConstraint(Sketcher.Constraint("DistanceY", 10, 2, 10, 1, Q("7.767816 mm")))
sketch6.addConstraint(Sketcher.Constraint("DistanceX", 1, 3, -1, 1, Q("10.05441 mm")))
sketch6.addConstraint(Sketcher.Constraint("DistanceY", 1, 3, -1, 1, Q("2.814452 mm")))
sketch6.addConstraint(Sketcher.Constraint("DistanceY", 3, 3, -1, 1, Q("2.771939 mm")))
sketch6.addConstraint(Sketcher.Constraint("DistanceX", 4, 3, -1, 1, Q("11.148659 mm")))
sketch6.addConstraint(Sketcher.Constraint("DistanceX", 7, 3, -1, 1, Q("10.939451 mm")))
sketch6.addConstraint(Sketcher.Constraint("DistanceY", 0, 2, -1, 1, Q("3.13173 mm")))
sketch6.addConstraint(Sketcher.Constraint("DistanceX", 1, 1, -1, 1, Q("9.595781 mm")))
pocket4 = body.newObject("PartDesign::Pocket", "Pocket003")
pocket4.Profile = sketch6
pocket4.setExpression("Length", "Params.pocket4_length")

# Sketch on XZ plane
sketch7 = body.newObject("Sketcher::SketchObject", "Sketch006")
sketch7.AttachmentSupport = (doc.getObject("XZ_Plane"), [""])
sketch7.MapMode = "FlatFace"
sketch7.AttachmentOffset = App.Placement(Vector(0, 0, -0.75 * 25.4), App.Rotation())
add_polygon(sketch7, [(-2.54, -1.27), (-2.54, 1.27), (2.54, 1.27), (2.54, -1.27)])  # lines 0-3
sketch7.addConstraint(Sketcher.Constraint("Vertical", 0))
sketch7.addConstraint(Sketcher.Constraint("Horizontal", 1))
sketch7.addConstraint(Sketcher.Constraint("Vertical", 2))
sketch7.addConstraint(Sketcher.Constraint("Horizontal", 3))
sketch7.addConstraint(Sketcher.Constraint("Symmetric", 0, 2, 2, 2, -1, 1))
sketch7.addConstraint(Sketcher.Constraint("DistanceX", 1, 1, 1, 2, Q("0.2 in")))
sketch7.addConstraint(Sketcher.Constraint("DistanceY", 0, 1, 0, 2, Q("0.1 in")))
sketch7.setExpression("Constraints[9]", "Params.sketch7_width")
sketch7.setExpression("Constraints[10]", "Params.sketch7_height")
pad3 = body.newObject("PartDesign::Pad", "Pad002")
pad3.Profile = sketch7
pad3.setExpression("Length", "Params.pad3_length")
pad3.Reversed = True

# Sketch on XY plane
sketch8 = body.newObject("Sketcher::SketchObject", "Sketch007")
sketch8.AttachmentSupport = (doc.getObject("XY_Plane"), [""])
sketch8.MapMode = "FlatFace"
sketch8.AttachmentOffset = App.Placement(Vector(0, 0, 0.5 * 25.4), App.Rotation())
sketch8.addGeometry(Part.Circle(Vector(0, 20.32, 0), Vector(0, 0, 1), 0.508), False)
sketch8.addGeometry(Part.ArcOfCircle(Part.Circle(Vector(0, 19.05, 0), Vector(0, 0, 1), 2.54), math.radians(0), math.radians(180)), False)
sketch8.addGeometry(Part.ArcOfCircle(Part.Circle(Vector(0, 20.472177, 0), Vector(0, 0, 1), 2.911046), math.radians(-29.245003), math.radians(209.245003)), False)
sketch8.addConstraint(Sketcher.Constraint("Coincident", 1, 1, 2, 1))
sketch8.addConstraint(Sketcher.Constraint("Coincident", 2, 2, 1, 2))
sketch8.addConstraint(Sketcher.Constraint("Symmetric", 1, 1, 2, 2, -2))
sketch8.addConstraint(Sketcher.Constraint("PointOnObject", 0, 3, -2))
sketch8.addConstraint(Sketcher.Constraint("Radius", 1, Q("0.1 in")))
sketch8.addConstraint(Sketcher.Constraint("Diameter", 0, Q("0.04 in")))
sketch8.addConstraint(Sketcher.Constraint("DistanceY", -1, 1, 0, 3, Q("0.8 in")))
sketch8.addConstraint(Sketcher.Constraint("DistanceY", -1, 1, 1, 3, Q("0.75 in")))
sketch8.addConstraint(Sketcher.Constraint("DistanceY", -1, 1, 1, 1, Q("0.75 in")))
sketch8.addConstraint(Sketcher.Constraint("Radius", 2, Q("2.911046 mm")))
sketch8.setExpression("Constraints[4]", "Params.sketch8_radius")
sketch8.setExpression("Constraints[5]", "Params.sketch8_diameter")
pocket5 = body.newObject("PartDesign::Pocket", "Pocket004")
pocket5.Profile = sketch8
pocket5.setExpression("Length", "Params.pocket5_length")

# Sketch on XZ plane
sketch9 = body.newObject("Sketcher::SketchObject", "Sketch008")
sketch9.AttachmentSupport = (doc.getObject("XZ_Plane"), [""])
sketch9.MapMode = "FlatFace"
sketch9.AttachmentOffset = App.Placement(Vector(0, 0, -0.75 * 25.4), App.Rotation())
add_polygon(sketch9, [(-12.7, -9.525), (-12.7, 9.525), (-3.175, 9.525), (-3.175, -9.525)])  # lines 0-3
sketch9.addConstraint(Sketcher.Constraint("Vertical", 0))
sketch9.addConstraint(Sketcher.Constraint("Horizontal", 1))
sketch9.addConstraint(Sketcher.Constraint("Vertical", 2))
sketch9.addConstraint(Sketcher.Constraint("Horizontal", 3))
sketch9.addConstraint(Sketcher.Constraint("DistanceY", 0, 1, 0, 2, Q("0.75 in")))
sketch9.addConstraint(Sketcher.Constraint("DistanceX", 0, 2, -1, 1, Q("0.5 in")))
sketch9.addConstraint(Sketcher.Constraint("DistanceX", 1, 1, 1, 2, Q("0.375 in")))
sketch9.addConstraint(Sketcher.Constraint("DistanceY", -1, 1, 0, 2, Q("0.375 in")))
sketch9.setExpression("Constraints[8]", "Params.sketch9_height")
sketch9.setExpression("Constraints[10]", "Params.sketch9_width")
pocket6 = body.newObject("PartDesign::Pocket", "Pocket005")
pocket6.Profile = sketch9
pocket6.setExpression("Length", "Params.pocket6_length")
pocket6.Reversed = True

doc.recompute()
